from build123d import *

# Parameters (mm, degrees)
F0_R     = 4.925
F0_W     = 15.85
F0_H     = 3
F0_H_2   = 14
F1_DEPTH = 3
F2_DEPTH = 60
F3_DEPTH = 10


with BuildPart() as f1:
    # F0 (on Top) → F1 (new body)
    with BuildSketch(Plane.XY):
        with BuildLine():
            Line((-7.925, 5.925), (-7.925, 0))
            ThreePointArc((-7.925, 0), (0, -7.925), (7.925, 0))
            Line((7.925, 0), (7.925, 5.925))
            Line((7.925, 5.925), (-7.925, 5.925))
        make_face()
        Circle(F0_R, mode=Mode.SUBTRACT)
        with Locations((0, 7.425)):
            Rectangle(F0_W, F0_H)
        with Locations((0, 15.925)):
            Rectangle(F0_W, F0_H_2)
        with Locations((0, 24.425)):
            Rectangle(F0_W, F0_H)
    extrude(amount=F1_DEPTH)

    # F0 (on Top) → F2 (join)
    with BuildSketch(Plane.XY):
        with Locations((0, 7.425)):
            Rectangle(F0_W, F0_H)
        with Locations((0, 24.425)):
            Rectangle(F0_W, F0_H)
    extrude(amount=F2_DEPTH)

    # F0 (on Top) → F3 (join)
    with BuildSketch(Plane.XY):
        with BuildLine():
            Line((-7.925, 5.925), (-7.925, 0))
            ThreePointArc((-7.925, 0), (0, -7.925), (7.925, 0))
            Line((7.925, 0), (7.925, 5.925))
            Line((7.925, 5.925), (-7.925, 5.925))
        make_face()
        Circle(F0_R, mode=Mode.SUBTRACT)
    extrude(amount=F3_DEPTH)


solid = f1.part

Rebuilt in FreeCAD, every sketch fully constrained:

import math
import FreeCAD as App
import Part
import Sketcher


def add_polygon(sketch, points):
    """Adds a closed chain of lines whose ends are joined by coincident constraints."""
    first, n = sketch.GeometryCount, len(points)
    for a, b in zip(points, points[1:] + points[:1]):
        sketch.addGeometry(Part.LineSegment(App.Vector(*a, 0), App.Vector(*b, 0)), False)
    for i in range(n):
        sketch.addConstraint(Sketcher.Constraint("Coincident", first + i, 2, first + (i + 1) % n, 1))

doc = App.newDocument("Part")
body = doc.addObject("PartDesign::Body", "Body")

sketch1 = body.newObject("Sketcher::SketchObject", "Sketch")
sketch1.AttachmentSupport = (doc.getObject("XY_Plane"), [""])
sketch1.MapMode = "FlatFace"
sketch1.addGeometry(Part.ArcOfCircle(Part.Circle(App.Vector(0, 0, 0), App.Vector(0, 0, 1), 7.9), math.radians(180), math.radians(360)), False)
sketch1.addGeometry(Part.LineSegment(App.Vector(7.9, 0, 0), App.Vector(7.9, 25.9, 0)), False)
sketch1.addGeometry(Part.LineSegment(App.Vector(7.9, 25.9, 0), App.Vector(-7.9, 25.9, 0)), False)
sketch1.addGeometry(Part.LineSegment(App.Vector(-7.9, 25.9, 0), App.Vector(-7.9, 0, 0)), False)
sketch1.addGeometry(Part.Circle(App.Vector(0, 0, 0), App.Vector(0, 0, 1), 4.9), False)
sketch1.addConstraint(Sketcher.Constraint("Tangent", 0, 2, 1, 1))
sketch1.addConstraint(Sketcher.Constraint("Coincident", 1, 2, 2, 1))
sketch1.addConstraint(Sketcher.Constraint("Coincident", 2, 2, 3, 1))
sketch1.addConstraint(Sketcher.Constraint("Tangent", 3, 2, 0, 1))
sketch1.addConstraint(Sketcher.Constraint("Vertical", 1))
sketch1.addConstraint(Sketcher.Constraint("Horizontal", 2))
sketch1.addConstraint(Sketcher.Constraint("Vertical", 3))
sketch1.addConstraint(Sketcher.Constraint("Coincident", 0, 3, -1, 1))
sketch1.addConstraint(Sketcher.Constraint("Coincident", 4, 3, -1, 1))
sketch1.addConstraint(Sketcher.Constraint("Diameter", 4, 9.85))
sketch1.addConstraint(Sketcher.Constraint("Radius", 0, 7.925))
sketch1.addConstraint(Sketcher.Constraint("DistanceY", 1, 1, 1, 2, 25.925))
pad1 = body.newObject("PartDesign::Pad", "Pad")
pad1.Profile = sketch1
pad1.Length = 3

sketch2 = body.newObject("Sketcher::SketchObject", "Sketch001")
sketch2.AttachmentSupport = (doc.getObject("XY_Plane"), [""])
sketch2.MapMode = "FlatFace"
add_polygon(sketch2, [(-7.9, 8.9), (-7.9, 5.9), (7.9, 5.9), (7.9, 8.9)])
add_polygon(sketch2, [(-7.9, 25.9), (-7.9, 22.9), (7.9, 22.9), (7.9, 25.9)])
sketch2.addConstraint(Sketcher.Constraint("Vertical", 0))
sketch2.addConstraint(Sketcher.Constraint("Horizontal", 1))
sketch2.addConstraint(Sketcher.Constraint("Vertical", 2))
sketch2.addConstraint(Sketcher.Constraint("Horizontal", 3))
sketch2.addConstraint(Sketcher.Constraint("Vertical", 4))
sketch2.addConstraint(Sketcher.Constraint("Horizontal", 5))
sketch2.addConstraint(Sketcher.Constraint("Vertical", 6))
sketch2.addConstraint(Sketcher.Constraint("Horizontal", 7))
sketch2.addConstraint(Sketcher.Constraint("Vertical", 3, 2, 4, 2))
sketch2.addConstraint(Sketcher.Constraint("Vertical", 2, 2, 5, 2))
sketch2.addConstraint(Sketcher.Constraint("Equal", 2, 4))
sketch2.addConstraint(Sketcher.Constraint("DistanceY", 0, 2, 0, 1, 3.0))
sketch2.addConstraint(Sketcher.Constraint("DistanceY", 3, 2, 4, 2, 14.0))
sketch2.addConstraint(Sketcher.Constraint("DistanceX", 1, 1, 1, 2, 15.85))
sketch2.addConstraint(Sketcher.Constraint("DistanceX", 0, 2, -1, 1, 7.925))
sketch2.addConstraint(Sketcher.Constraint("DistanceY", -1, 1, 0, 2, 5.925))
pad2 = body.newObject("PartDesign::Pad", "Pad001")
pad2.Profile = sketch2
pad2.Length = 60

sketch3 = body.newObject("Sketcher::SketchObject", "Sketch002")
sketch3.AttachmentSupport = (doc.getObject("XY_Plane"), [""])
sketch3.MapMode = "FlatFace"
sketch3.addGeometry(Part.LineSegment(App.Vector(-7.9, 5.9, 0), App.Vector(-7.9, 0, 0)), False)
sketch3.addGeometry(Part.ArcOfCircle(Part.Circle(App.Vector(0, 0, 0), App.Vector(0, 0, 1), 7.9), math.radians(180), math.radians(360)), False)
sketch3.addGeometry(Part.LineSegment(App.Vector(7.9, 0, 0), App.Vector(7.9, 5.9, 0)), False)
sketch3.addGeometry(Part.LineSegment(App.Vector(7.9, 5.9, 0), App.Vector(-7.9, 5.9, 0)), False)
sketch3.addGeometry(Part.Circle(App.Vector(0, 0, 0), App.Vector(0, 0, 1), 4.9), False)
sketch3.addConstraint(Sketcher.Constraint("Tangent", 0, 2, 1, 1))
sketch3.addConstraint(Sketcher.Constraint("Tangent", 1, 2, 2, 1))
sketch3.addConstraint(Sketcher.Constraint("Coincident", 2, 2, 3, 1))
sketch3.addConstraint(Sketcher.Constraint("Coincident", 3, 2, 0, 1))
sketch3.addConstraint(Sketcher.Constraint("Vertical", 0))
sketch3.addConstraint(Sketcher.Constraint("Vertical", 2))
sketch3.addConstraint(Sketcher.Constraint("Horizontal", 3))
sketch3.addConstraint(Sketcher.Constraint("Coincident", 1, 3, -1, 1))
sketch3.addConstraint(Sketcher.Constraint("Coincident", 4, 3, -1, 1))
sketch3.addConstraint(Sketcher.Constraint("Diameter", 4, 9.85))
sketch3.addConstraint(Sketcher.Constraint("Radius", 1, 7.925))
sketch3.addConstraint(Sketcher.Constraint("DistanceY", 0, 2, 0, 1, 5.925))
pad3 = body.newObject("PartDesign::Pad", "Pad002")
pad3.Profile = sketch3
pad3.Length = 10

doc.recompute()
